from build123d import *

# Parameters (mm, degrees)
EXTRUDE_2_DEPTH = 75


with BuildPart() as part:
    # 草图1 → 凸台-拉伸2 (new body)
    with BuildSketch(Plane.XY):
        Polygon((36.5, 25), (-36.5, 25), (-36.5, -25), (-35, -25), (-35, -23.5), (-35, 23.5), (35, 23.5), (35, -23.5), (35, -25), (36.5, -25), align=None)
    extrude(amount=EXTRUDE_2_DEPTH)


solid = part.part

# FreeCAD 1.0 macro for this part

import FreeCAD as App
import Part
import Sketcher

V = App.Vector


def add_polygon(sketch, points):
    """Adds a closed chain of lines whose ends are joined by coincident constraints."""
    first, n = sketch.GeometryCount, len(points)
    for a, b in zip(points, points[1:] + points[:1]):
        sketch.addGeometry(Part.LineSegment(App.Vector(*a, 0), App.Vector(*b, 0)), False)
    for i in range(n):
        sketch.addConstraint(Sketcher.Constraint("Coincident", first + i, 2, first + (i + 1) % n, 1))

doc = App.newDocument("Part")
body = doc.addObject("PartDesign::Body", "Body")

# Sketch on XY plane
sketch1 = body.newObject("Sketcher::SketchObject", "Sketch")
sketch1.AttachmentSupport = (doc.getObject("XY_Plane"), [""])
sketch1.MapMode = "FlatFace"
add_polygon(sketch1, [(36.5, 25), (-36.5, 25), (-36.5, -25), (-35, -25), (-35, 23.5), (35, 23.5), (35, -25), (36.5, -25)])  # lines 0-7
sketch1.addConstraint([
    Sketcher.Constraint("Horizontal", 0),
    Sketcher.Constraint("Vertical", 1),
    Sketcher.Constraint("Horizontal", 2),
    Sketcher.Constraint("Vertical", 3),
    Sketcher.Constraint("Horizontal", 4),
    Sketcher.Constraint("Vertical", 5),
    Sketcher.Constraint("Horizontal", 6),
    Sketcher.Constraint("Vertical", 7),
    Sketcher.Constraint("Symmetric", 0, 2, 6, 2, -1, 1),
    Sketcher.Constraint("Symmetric", 2, 2, 5, 2, -2),
    Sketcher.Constraint("DistanceX", 0, 2, 0, 1, 73.0),
    Sketcher.Constraint("DistanceX", 4, 1, 4, 2, 70.0),
    Sketcher.Constraint("DistanceY", 1, 2, 1, 1, 50.0),
    Sketcher.Constraint("DistanceY", 3, 1, 3, 2, 48.5),
])
pad1 = body.newObject("PartDesign::Pad", "Pad")
pad1.Profile = sketch1
pad1.Length = 75

doc.recompute()
